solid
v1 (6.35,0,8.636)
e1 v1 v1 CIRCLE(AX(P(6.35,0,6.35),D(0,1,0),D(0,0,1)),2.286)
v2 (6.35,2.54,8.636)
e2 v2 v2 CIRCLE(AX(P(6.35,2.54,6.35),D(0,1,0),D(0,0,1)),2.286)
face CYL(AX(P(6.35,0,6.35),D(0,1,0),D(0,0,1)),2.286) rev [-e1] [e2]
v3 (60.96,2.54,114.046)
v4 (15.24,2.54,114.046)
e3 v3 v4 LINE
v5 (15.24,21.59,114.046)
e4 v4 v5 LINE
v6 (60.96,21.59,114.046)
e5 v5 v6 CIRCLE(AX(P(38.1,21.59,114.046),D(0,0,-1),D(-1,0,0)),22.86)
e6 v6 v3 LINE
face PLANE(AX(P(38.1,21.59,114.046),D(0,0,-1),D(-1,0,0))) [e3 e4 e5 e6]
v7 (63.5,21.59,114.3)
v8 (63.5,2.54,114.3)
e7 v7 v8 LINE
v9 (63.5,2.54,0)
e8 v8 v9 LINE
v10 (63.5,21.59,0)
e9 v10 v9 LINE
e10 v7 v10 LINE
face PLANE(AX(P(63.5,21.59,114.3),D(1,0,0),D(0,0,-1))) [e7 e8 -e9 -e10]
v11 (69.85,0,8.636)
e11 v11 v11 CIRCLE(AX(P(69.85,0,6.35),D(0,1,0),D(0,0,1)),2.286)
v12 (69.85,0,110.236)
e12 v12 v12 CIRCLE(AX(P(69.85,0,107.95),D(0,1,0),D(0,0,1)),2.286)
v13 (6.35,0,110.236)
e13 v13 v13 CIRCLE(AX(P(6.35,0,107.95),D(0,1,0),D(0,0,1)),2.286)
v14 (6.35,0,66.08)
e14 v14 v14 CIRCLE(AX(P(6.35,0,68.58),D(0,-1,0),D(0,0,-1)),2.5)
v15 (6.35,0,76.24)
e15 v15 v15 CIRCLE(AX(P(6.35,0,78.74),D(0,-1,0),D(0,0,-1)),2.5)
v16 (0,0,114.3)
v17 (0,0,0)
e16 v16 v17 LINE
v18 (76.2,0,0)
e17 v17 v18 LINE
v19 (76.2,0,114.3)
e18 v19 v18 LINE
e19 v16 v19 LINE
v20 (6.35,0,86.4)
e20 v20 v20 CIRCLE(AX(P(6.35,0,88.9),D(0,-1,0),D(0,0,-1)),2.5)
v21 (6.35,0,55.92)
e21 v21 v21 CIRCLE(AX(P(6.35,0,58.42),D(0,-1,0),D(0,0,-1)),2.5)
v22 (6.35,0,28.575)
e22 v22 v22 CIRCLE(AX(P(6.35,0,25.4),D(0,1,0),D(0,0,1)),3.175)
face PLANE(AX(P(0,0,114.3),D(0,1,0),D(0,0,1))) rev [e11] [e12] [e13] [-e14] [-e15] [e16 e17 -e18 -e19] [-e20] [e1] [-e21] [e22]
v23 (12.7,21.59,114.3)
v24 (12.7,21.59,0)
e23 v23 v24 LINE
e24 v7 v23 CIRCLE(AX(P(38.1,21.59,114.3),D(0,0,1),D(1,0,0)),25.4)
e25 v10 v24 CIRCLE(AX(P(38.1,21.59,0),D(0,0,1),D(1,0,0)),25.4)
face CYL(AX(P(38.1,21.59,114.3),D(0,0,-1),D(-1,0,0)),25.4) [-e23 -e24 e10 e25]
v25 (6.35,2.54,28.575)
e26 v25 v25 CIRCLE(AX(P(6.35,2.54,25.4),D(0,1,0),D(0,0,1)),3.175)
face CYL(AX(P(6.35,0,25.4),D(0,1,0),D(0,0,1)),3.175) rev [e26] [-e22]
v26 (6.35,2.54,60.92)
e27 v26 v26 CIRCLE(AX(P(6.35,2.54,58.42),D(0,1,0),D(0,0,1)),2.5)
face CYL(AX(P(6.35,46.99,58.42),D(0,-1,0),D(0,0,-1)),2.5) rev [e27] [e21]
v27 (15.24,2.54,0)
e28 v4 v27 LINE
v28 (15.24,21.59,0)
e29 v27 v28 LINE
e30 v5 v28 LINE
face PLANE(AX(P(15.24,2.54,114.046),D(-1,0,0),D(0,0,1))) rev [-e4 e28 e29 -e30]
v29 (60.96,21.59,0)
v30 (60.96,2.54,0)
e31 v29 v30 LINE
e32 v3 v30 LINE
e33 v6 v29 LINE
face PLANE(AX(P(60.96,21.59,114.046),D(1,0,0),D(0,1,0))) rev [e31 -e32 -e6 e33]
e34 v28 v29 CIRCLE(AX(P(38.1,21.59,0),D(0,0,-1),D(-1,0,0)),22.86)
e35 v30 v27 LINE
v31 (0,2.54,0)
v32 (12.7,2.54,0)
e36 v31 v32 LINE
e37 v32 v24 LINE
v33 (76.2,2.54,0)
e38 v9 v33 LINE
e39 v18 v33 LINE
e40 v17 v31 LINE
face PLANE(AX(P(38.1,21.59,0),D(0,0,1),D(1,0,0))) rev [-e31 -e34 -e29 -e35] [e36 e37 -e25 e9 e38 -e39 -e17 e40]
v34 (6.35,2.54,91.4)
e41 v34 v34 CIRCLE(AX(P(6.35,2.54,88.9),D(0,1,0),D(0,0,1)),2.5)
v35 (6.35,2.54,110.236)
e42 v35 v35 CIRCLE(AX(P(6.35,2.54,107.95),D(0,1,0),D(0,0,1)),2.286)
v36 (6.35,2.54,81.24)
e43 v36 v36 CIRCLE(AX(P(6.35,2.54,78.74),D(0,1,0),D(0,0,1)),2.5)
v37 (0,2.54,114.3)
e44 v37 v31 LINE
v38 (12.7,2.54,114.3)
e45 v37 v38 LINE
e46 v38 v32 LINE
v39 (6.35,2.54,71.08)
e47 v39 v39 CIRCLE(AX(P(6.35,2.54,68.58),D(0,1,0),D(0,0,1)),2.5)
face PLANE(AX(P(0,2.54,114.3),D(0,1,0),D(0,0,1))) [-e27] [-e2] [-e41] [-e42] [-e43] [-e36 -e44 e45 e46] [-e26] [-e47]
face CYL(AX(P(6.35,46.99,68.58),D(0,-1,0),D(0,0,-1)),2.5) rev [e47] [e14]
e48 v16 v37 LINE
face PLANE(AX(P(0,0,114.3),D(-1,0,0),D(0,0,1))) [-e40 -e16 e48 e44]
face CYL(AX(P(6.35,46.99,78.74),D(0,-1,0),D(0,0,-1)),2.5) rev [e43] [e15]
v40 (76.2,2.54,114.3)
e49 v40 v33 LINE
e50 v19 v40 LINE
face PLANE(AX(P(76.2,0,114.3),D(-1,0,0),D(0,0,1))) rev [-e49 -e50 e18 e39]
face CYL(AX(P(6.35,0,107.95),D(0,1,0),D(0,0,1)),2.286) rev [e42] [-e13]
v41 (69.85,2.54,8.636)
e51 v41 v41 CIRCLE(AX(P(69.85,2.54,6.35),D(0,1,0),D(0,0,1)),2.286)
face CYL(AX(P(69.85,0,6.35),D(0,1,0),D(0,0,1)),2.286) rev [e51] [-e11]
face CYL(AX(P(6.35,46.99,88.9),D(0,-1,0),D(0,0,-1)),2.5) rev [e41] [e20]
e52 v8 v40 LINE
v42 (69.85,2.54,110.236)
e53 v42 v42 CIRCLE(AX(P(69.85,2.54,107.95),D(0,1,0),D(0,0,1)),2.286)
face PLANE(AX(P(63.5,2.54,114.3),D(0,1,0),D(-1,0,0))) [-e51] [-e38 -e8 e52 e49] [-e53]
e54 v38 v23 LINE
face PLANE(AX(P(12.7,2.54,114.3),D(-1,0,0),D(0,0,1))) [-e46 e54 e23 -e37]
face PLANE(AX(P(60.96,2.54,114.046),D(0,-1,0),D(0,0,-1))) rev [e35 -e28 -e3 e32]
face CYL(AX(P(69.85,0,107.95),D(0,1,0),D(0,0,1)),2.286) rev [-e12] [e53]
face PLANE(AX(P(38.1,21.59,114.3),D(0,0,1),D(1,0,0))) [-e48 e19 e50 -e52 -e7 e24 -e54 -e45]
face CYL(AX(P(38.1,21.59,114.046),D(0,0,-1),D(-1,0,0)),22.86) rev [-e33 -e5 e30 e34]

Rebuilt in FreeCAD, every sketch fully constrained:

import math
import FreeCAD as App
import Part
import Sketcher
Q = App.Units.Quantity

doc = App.newDocument("Part")
body = doc.addObject("PartDesign::Body", "Body")

# Sketch on XY plane
sketch1 = body.newObject("Sketcher::SketchObject", "Sketch")
sketch1.AttachmentSupport = (doc.getObject("XY_Plane"), [""])
sketch1.MapMode = "FlatFace"
sketch1.addGeometry(Part.LineSegment(App.Vector(0, 0, 0), App.Vector(76.2, 0, 0)), False)
sketch1.addGeometry(Part.LineSegment(App.Vector(76.2, 0, 0), App.Vector(76.2, 2.5, 0)), False)
sketch1.addGeometry(Part.LineSegment(App.Vector(76.2, 2.5, 0), App.Vector(63.5, 2.5, 0)), False)
sketch1.addGeometry(Part.LineSegment(App.Vector(63.5, 2.5, 0), App.Vector(63.5, 21.6, 0)), False)
sketch1.addGeometry(Part.ArcOfCircle(Part.Circle(App.Vector(38.1, 21.6, 0), App.Vector(0, 0, 1), 25.4), math.radians(0), math.radians(180)), False)
sketch1.addGeometry(Part.LineSegment(App.Vector(12.7, 21.6, 0), App.Vector(12.7, 2.5, 0)), False)
sketch1.addGeometry(Part.LineSegment(App.Vector(12.7, 2.5, 0), App.Vector(0, 2.5, 0)), False)
sketch1.addGeometry(Part.LineSegment(App.Vector(0, 2.5, 0), App.Vector(0, 0, 0)), False)
sketch1.addConstraint(Sketcher.Constraint("Coincident", 0, 2, 1, 1))
sketch1.addConstraint(Sketcher.Constraint("Coincident", 1, 2, 2, 1))
sketch1.addConstraint(Sketcher.Constraint("Coincident", 2, 2, 3, 1))
sketch1.addConstraint(Sketcher.Constraint("Tangent", 3, 2, 4, 1))
sketch1.addConstraint(Sketcher.Constraint("Tangent", 4, 2, 5, 1))
sketch1.addConstraint(Sketcher.Constraint("Coincident", 5, 2, 6, 1))
sketch1.addConstraint(Sketcher.Constraint("Coincident", 6, 2, 7, 1))
sketch1.addConstraint(Sketcher.Constraint("Coincident", 7, 2, 0, 1))
sketch1.addConstraint(Sketcher.Constraint("Horizontal", 0))
sketch1.addConstraint(Sketcher.Constraint("Vertical", 1))
sketch1.addConstraint(Sketcher.Constraint("Horizontal", 2))
sketch1.addConstraint(Sketcher.Constraint("Vertical", 3))
sketch1.addConstraint(Sketcher.Constraint("Vertical", 5))
sketch1.addConstraint(Sketcher.Constraint("Horizontal", 6))
sketch1.addConstraint(Sketcher.Constraint("Vertical", 7))
sketch1.addConstraint(Sketcher.Constraint("Coincident", 7, 2, -1, 1))
sketch1.addConstraint(Sketcher.Constraint("Horizontal", 2, 2, 5, 2))
sketch1.addConstraint(Sketcher.Constraint("Equal", 2, 6))
sketch1.addConstraint(Sketcher.Constraint("Radius", 4, Q("1 in")))
sketch1.addConstraint(Sketcher.Constraint("DistanceX", 0, 1, 0, 2, Q("3 in")))
sketch1.addConstraint(Sketcher.Constraint("DistanceY", 1, 1, 1, 2, Q("0.1 in")))
sketch1.addConstraint(Sketcher.Constraint("DistanceY", 3, 1, 3, 2, Q("0.75 in")))
pad1 = body.newObject("PartDesign::Pad", "Pad")
pad1.Profile = sketch1
pad1.Length = Q("4.5 in")

# Sketch on XZ plane
sketch2 = body.newObject("Sketcher::SketchObject", "Sketch001")
sketch2.AttachmentSupport = (doc.getObject("XZ_Plane"), [""])
sketch2.MapMode = "FlatFace"
sketch2.AttachmentOffset = App.Placement(App.Vector(0, 0, -0.1 * 25.4), App.Rotation())
sketch2.addGeometry(Part.Circle(App.Vector(6.3, 6.3, 0), App.Vector(0, 0, 1), 2.3), False)
sketch2.addGeometry(Part.Circle(App.Vector(69.8, 6.3, 0), App.Vector(0, 0, 1), 2.3), False)
sketch2.addGeometry(Part.Circle(App.Vector(69.8, 108, 0), App.Vector(0, 0, 1), 2.3), False)
sketch2.addGeometry(Part.Circle(App.Vector(6.3, 108, 0), App.Vector(0, 0, 1), 2.3), False)
sketch2.addConstraint(Sketcher.Constraint("Equal", 0, 1))
sketch2.addConstraint(Sketcher.Constraint("Equal", 1, 2))
sketch2.addConstraint(Sketcher.Constraint("Equal", 2, 3))
sketch2.addConstraint(Sketcher.Constraint("Horizontal", 0, 3, 1, 3))
sketch2.addConstraint(Sketcher.Constraint("Horizontal", 2, 3, 3, 3))
sketch2.addConstraint(Sketcher.Constraint("Vertical", 1, 3, 2, 3))
sketch2.addConstraint(Sketcher.Constraint("Vertical", 0, 3, 3, 3))
sketch2.addConstraint(Sketcher.Constraint("Diameter", 0, Q("0.18 in")))
sketch2.addConstraint(Sketcher.Constraint("DistanceY", 1, 3, 2, 3, Q("4 in")))
sketch2.addConstraint(Sketcher.Constraint("DistanceX", 0, 3, 1, 3, Q("2.5 in")))
sketch2.addConstraint(Sketcher.Constraint("DistanceX", -1, 1, 0, 3, Q("0.25 in")))
sketch2.addConstraint(Sketcher.Constraint("DistanceY", -1, 1, 0, 3, Q("0.25 in")))
pocket1 = body.newObject("PartDesign::Pocket", "Pocket")
pocket1.Profile = sketch2
pocket1.Type = "ThroughAll"
pocket1.Reversed = True

# Sketch on XY plane
sketch3 = body.newObject("Sketcher::SketchObject", "Sketch002")
sketch3.AttachmentSupport = (doc.getObject("XY_Plane"), [""])
sketch3.MapMode = "FlatFace"
sketch3.addGeometry(Part.LineSegment(App.Vector(61, 3, 0), App.Vector(15, 3, 0)), False)
sketch3.addGeometry(Part.LineSegment(App.Vector(15, 3, 0), App.Vector(15, 22, 0)), False)
sketch3.addGeometry(Part.ArcOfCircle(Part.Circle(App.Vector(38, 22, 0), App.Vector(0, 0, 1), 23), math.radians(0), math.radians(180)), False)
sketch3.addGeometry(Part.LineSegment(App.Vector(61, 22, 0), App.Vector(61, 3, 0)), False)
sketch3.addConstraint(Sketcher.Constraint("Coincident", 0, 2, 1, 1))
sketch3.addConstraint(Sketcher.Constraint("Tangent", 1, 2, 2, 2))
sketch3.addConstraint(Sketcher.Constraint("Tangent", 2, 1, 3, 1))
sketch3.addConstraint(Sketcher.Constraint("Coincident", 3, 2, 0, 1))
sketch3.addConstraint(Sketcher.Constraint("Horizontal", 0))
sketch3.addConstraint(Sketcher.Constraint("Vertical", 1))
sketch3.addConstraint(Sketcher.Constraint("Vertical", 3))
sketch3.addConstraint(Sketcher.Constraint("Radius", 2, Q("0.9 in")))
sketch3.addConstraint(Sketcher.Constraint("DistanceY", 1, 1, 1, 2, Q("0.75 in")))
sketch3.addConstraint(Sketcher.Constraint("DistanceX", -1, 1, 2, 3, Q("1.5 in")))
sketch3.addConstraint(Sketcher.Constraint("DistanceY", -1, 1, 0, 2, Q("0.1 in")))
pocket2 = body.newObject("PartDesign::Pocket", "Pocket001")
pocket2.Profile = sketch3
pocket2.Length = Q("4.49 in")
pocket2.Reversed = True

# Sketch on XZ plane
sketch4 = body.newObject("Sketcher::SketchObject", "Sketch003")
sketch4.AttachmentSupport = (doc.getObject("XZ_Plane"), [""])
sketch4.MapMode = "FlatFace"
sketch4.addGeometry(Part.Circle(App.Vector(6.3, 88.9, 0), App.Vector(0, 0, 1), 2.5), False)
sketch4.addGeometry(Part.Circle(App.Vector(6.3, 78.7, 0), App.Vector(0, 0, 1), 2.5), False)
sketch4.addGeometry(Part.Circle(App.Vector(6.3, 68.6, 0), App.Vector(0, 0, 1), 2.5), False)
sketch4.addGeometry(Part.Circle(App.Vector(6.3, 58.4, 0), App.Vector(0, 0, 1), 2.5), False)
sketch4.addConstraint(Sketcher.Constraint("Equal", 0, 1))
sketch4.addConstraint(Sketcher.Constraint("Equal", 1, 2))
sketch4.addConstraint(Sketcher.Constraint("Equal", 2, 3))
sketch4.addConstraint(Sketcher.Constraint("Vertical", 0, 3, 1, 3))
sketch4.addConstraint(Sketcher.Constraint("Vertical", 1, 3, 2, 3))
sketch4.addConstraint(Sketcher.Constraint("Vertical", 2, 3, 3, 3))
sketch4.addConstraint(Sketcher.Constraint("DistanceY", -1, 1, 0, 3, Q("3.5 in")))
sketch4.addConstraint(Sketcher.Constraint("DistanceY", -1, 1, 1, 3, Q("3.1 in")))
sketch4.addConstraint(Sketcher.Constraint("DistanceY", -1, 1, 2, 3, Q("2.7 in")))
sketch4.addConstraint(Sketcher.Constraint("DistanceY", -1, 1, 3, 3, Q("2.3 in")))
sketch4.addConstraint(Sketcher.Constraint("Diameter", 0, Q("5 mm")))
sketch4.addConstraint(Sketcher.Constraint("DistanceX", -1, 1, 0, 3, Q("0.25 in")))
pocket3 = body.newObject("PartDesign::Pocket", "Pocket002")
pocket3.Profile = sketch4
pocket3.Type = "ThroughAll"

# Sketch on XZ plane
sketch5 = body.newObject("Sketcher::SketchObject", "Sketch004")
sketch5.AttachmentSupport = (doc.getObject("XZ_Plane"), [""])
sketch5.MapMode = "FlatFace"
sketch5.AttachmentOffset = App.Placement(App.Vector(0, 0, -0.1 * 25.4), App.Rotation())
sketch5.addGeometry(Part.Circle(App.Vector(6.3, 25.4, 0), App.Vector(0, 0, 1), 3.2), False)
sketch5.addConstraint(Sketcher.Constraint("Diameter", 0, Q("0.25 in")))
sketch5.addConstraint(Sketcher.Constraint("DistanceY", -1, 1, 0, 3, Q("1 in")))
sketch5.addConstraint(Sketcher.Constraint("DistanceX", -1, 1, 0, 3, Q("0.25 in")))
pocket4 = body.newObject("PartDesign::Pocket", "Pocket003")
pocket4.Profile = sketch5
pocket4.Type = "ThroughAll"
pocket4.Reversed = True

doc.recompute()
